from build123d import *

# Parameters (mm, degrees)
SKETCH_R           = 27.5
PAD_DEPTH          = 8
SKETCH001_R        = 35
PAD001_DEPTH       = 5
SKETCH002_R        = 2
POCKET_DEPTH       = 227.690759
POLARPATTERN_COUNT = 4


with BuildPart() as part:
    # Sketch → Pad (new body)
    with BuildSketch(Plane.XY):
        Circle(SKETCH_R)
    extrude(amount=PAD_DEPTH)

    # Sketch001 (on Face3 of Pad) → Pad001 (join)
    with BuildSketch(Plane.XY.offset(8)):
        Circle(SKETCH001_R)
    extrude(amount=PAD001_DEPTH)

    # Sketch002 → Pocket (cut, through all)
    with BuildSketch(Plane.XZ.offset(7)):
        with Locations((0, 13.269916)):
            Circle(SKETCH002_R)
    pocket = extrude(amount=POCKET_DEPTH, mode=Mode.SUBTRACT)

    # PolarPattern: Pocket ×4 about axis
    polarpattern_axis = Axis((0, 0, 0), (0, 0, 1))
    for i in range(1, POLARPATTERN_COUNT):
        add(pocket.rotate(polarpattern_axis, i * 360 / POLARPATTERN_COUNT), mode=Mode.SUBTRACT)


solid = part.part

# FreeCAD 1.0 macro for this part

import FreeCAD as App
import Part
import Sketcher
from FreeCAD import Vector
Q = App.Units.Quantity

doc = App.newDocument("Part")
body = doc.addObject("PartDesign::Body", "Body")

# Sketch on XY plane
sketch1 = body.newObject("Sketcher::SketchObject", "Sketch")
sketch1.AttachmentSupport = (doc.getObject("XY_Plane"), [""])
sketch1.MapMode = "FlatFace"
sketch1.addGeometry(Part.Circle(Vector(0, 0, 0), Vector(0, 0, 1), 28), False)
sketch1.addConstraint(Sketcher.Constraint("Coincident", 0, 3, -1, 1))
sketch1.addConstraint(Sketcher.Constraint("Diameter", 0, Q("55 mm")))
pad1 = body.newObject("PartDesign::Pad", "Pad")
pad1.Profile = sketch1
pad1.Length = 8

# Sketch on XY plane
sketch2 = body.newObject("Sketcher::SketchObject", "Sketch001")
sketch2.AttachmentSupport = (doc.getObject("XY_Plane"), [""])
sketch2.MapMode = "FlatFace"
sketch2.AttachmentOffset = App.Placement(Vector(0, 0, 8), App.Rotation())
sketch2.addGeometry(Part.Circle(Vector(0, 0, 0), Vector(0, 0, 1), 35), False)
sketch2.addConstraint(Sketcher.Constraint("Coincident", 0, 3, -1, 1))
sketch2.addConstraint(Sketcher.Constraint("Diameter", 0, Q("70 mm")))
pad2 = body.newObject("PartDesign::Pad", "Pad001")
pad2.Profile = sketch2
pad2.Length = 5

# Sketch on XZ plane
sketch3 = body.newObject("Sketcher::SketchObject", "Sketch002")
sketch3.AttachmentSupport = (doc.getObject("XZ_Plane"), [""])
sketch3.MapMode = "FlatFace"
sketch3.AttachmentOffset = App.Placement(Vector(0, 0, 7), App.Rotation())
sketch3.addGeometry(Part.Circle(Vector(0, 13.3, 0), Vector(0, 0, 1), 2), False)
sketch3.addConstraint(Sketcher.Constraint("PointOnObject", 0, 3, -2))
sketch3.addConstraint(Sketcher.Constraint("Diameter", 0, Q("4 mm")))
sketch3.addConstraint(Sketcher.Constraint("DistanceY", -1, 1, 0, 3, Q("13.269916 mm")))
pocket1 = body.newObject("PartDesign::Pocket", "Pocket")
pocket1.Profile = sketch3
pocket1.Type = "ThroughAll"
pocket1.Reversed = True
doc.recompute()

polarpattern = body.newObject("PartDesign::PolarPattern", "PolarPattern")
polarpattern.Originals = [pocket1]
polarpattern.Axis = (doc.getObject("Z_Axis"), [""])
polarpattern.Angle = 360
polarpattern.Occurrences = 4
body.Tip = polarpattern

doc.recompute()
